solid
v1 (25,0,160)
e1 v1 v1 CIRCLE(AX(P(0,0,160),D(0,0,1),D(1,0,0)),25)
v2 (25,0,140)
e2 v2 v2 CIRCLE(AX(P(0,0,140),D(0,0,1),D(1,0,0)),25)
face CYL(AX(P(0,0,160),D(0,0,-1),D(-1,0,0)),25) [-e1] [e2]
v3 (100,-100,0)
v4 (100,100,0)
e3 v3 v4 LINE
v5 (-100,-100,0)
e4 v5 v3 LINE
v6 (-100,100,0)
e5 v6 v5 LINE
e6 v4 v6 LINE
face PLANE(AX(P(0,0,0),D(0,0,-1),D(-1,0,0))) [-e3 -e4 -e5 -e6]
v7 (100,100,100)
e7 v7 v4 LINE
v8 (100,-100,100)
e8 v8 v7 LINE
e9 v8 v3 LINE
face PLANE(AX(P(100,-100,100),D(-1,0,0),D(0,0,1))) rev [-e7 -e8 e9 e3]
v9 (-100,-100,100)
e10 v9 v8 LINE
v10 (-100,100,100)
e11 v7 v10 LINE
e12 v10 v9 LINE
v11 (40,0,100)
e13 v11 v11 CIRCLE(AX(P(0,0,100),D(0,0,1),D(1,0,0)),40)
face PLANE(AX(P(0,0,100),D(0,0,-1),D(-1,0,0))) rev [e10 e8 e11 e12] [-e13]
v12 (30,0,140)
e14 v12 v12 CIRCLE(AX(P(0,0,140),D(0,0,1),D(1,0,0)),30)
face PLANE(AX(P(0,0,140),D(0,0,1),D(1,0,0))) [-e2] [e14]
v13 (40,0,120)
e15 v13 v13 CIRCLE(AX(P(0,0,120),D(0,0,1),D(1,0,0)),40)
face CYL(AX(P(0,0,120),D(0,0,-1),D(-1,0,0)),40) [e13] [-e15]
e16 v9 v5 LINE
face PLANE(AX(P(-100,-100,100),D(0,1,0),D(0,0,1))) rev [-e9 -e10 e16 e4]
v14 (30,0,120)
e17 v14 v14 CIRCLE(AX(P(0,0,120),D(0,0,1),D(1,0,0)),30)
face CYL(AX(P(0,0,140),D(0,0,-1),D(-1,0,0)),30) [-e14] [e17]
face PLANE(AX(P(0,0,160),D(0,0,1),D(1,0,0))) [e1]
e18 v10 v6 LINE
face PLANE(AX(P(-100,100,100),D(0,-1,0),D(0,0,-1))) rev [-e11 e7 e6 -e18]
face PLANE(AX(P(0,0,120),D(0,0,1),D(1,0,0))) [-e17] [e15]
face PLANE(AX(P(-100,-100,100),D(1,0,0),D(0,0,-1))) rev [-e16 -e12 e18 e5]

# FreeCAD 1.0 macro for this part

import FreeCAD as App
import Part
import Sketcher

doc = App.newDocument("Part")
body = doc.addObject("PartDesign::Body", "Body")

# Sketch on XY plane
sketch1 = body.newObject("Sketcher::SketchObject", "Sketch")
sketch1.AttachmentSupport = (doc.getObject("XY_Plane"), [""])
sketch1.MapMode = "FlatFace"
sketch1.addGeometry([
    Part.LineSegment(App.Vector(-100, 100, 0), App.Vector(-100, -100, 0)),
    Part.LineSegment(App.Vector(-100, -100, 0), App.Vector(100, -100, 0)),
    Part.LineSegment(App.Vector(100, -100, 0), App.Vector(100, 100, 0)),
    Part.LineSegment(App.Vector(100, 100, 0), App.Vector(-100, 100, 0)),
], False)
sketch1.addConstraint([
    Sketcher.Constraint("Coincident", 0, 2, 1, 1),
    Sketcher.Constraint("Coincident", 1, 2, 2, 1),
    Sketcher.Constraint("Coincident", 2, 2, 3, 1),
    Sketcher.Constraint("Coincident", 3, 2, 0, 1),
    Sketcher.Constraint("Vertical", 0),
    Sketcher.Constraint("Horizontal", 1),
    Sketcher.Constraint("Vertical", 2),
    Sketcher.Constraint("Horizontal", 3),
    Sketcher.Constraint("Symmetric", 0, 2, 2, 2, -1, 1),
    Sketcher.Constraint("Equal", 3, 0),
    Sketcher.Constraint("DistanceX", 1, 1, 1, 2, 200.0),
])
pad1 = body.newObject("PartDesign::Pad", "Pad")
pad1.Profile = sketch1
pad1.Length = 100

# Sketch on XY plane
sketch2 = body.newObject("Sketcher::SketchObject", "Sketch001")
sketch2.AttachmentSupport = (doc.getObject("XY_Plane"), [""])
sketch2.MapMode = "FlatFace"
sketch2.AttachmentOffset = App.Placement(App.Vector(0, 0, 100), App.Rotation())
sketch2.addGeometry(Part.Circle(App.Vector(0, 0, 0), App.Vector(0, 0, 1), 40), False)
sketch2.addConstraint([
    Sketcher.Constraint("Coincident", 0, 3, -1, 1),
    Sketcher.Constraint("Diameter", 0, 80.0),
])
pad2 = body.newObject("PartDesign::Pad", "Pad001")
pad2.Profile = sketch2
pad2.Length = 20

# Sketch on XY plane
sketch3 = body.newObject("Sketcher::SketchObject", "Sketch002")
sketch3.AttachmentSupport = (doc.getObject("XY_Plane"), [""])
sketch3.MapMode = "FlatFace"
sketch3.AttachmentOffset = App.Placement(App.Vector(0, 0, 120), App.Rotation())
sketch3.addGeometry(Part.Circle(App.Vector(0, 0, 0), App.Vector(0, 0, 1), 30), False)
sketch3.addConstraint([
    Sketcher.Constraint("Coincident", 0, 3, -1, 1),
    Sketcher.Constraint("Diameter", 0, 60.0),
])
pad3 = body.newObject("PartDesign::Pad", "Pad002")
pad3.Profile = sketch3
pad3.Length = 20

# Sketch on XY plane
sketch4 = body.newObject("Sketcher::SketchObject", "Sketch003")
sketch4.AttachmentSupport = (doc.getObject("XY_Plane"), [""])
sketch4.MapMode = "FlatFace"
sketch4.AttachmentOffset = App.Placement(App.Vector(0, 0, 140), App.Rotation())
sketch4.addGeometry(Part.Circle(App.Vector(0, 0, 0), App.Vector(0, 0, 1), 25), False)
sketch4.addConstraint([
    Sketcher.Constraint("Coincident", 0, 3, -1, 1),
    Sketcher.Constraint("Diameter", 0, 50.0),
])
pad4 = body.newObject("PartDesign::Pad", "Pad003")
pad4.Profile = sketch4
pad4.Length = 20

doc.recompute()
